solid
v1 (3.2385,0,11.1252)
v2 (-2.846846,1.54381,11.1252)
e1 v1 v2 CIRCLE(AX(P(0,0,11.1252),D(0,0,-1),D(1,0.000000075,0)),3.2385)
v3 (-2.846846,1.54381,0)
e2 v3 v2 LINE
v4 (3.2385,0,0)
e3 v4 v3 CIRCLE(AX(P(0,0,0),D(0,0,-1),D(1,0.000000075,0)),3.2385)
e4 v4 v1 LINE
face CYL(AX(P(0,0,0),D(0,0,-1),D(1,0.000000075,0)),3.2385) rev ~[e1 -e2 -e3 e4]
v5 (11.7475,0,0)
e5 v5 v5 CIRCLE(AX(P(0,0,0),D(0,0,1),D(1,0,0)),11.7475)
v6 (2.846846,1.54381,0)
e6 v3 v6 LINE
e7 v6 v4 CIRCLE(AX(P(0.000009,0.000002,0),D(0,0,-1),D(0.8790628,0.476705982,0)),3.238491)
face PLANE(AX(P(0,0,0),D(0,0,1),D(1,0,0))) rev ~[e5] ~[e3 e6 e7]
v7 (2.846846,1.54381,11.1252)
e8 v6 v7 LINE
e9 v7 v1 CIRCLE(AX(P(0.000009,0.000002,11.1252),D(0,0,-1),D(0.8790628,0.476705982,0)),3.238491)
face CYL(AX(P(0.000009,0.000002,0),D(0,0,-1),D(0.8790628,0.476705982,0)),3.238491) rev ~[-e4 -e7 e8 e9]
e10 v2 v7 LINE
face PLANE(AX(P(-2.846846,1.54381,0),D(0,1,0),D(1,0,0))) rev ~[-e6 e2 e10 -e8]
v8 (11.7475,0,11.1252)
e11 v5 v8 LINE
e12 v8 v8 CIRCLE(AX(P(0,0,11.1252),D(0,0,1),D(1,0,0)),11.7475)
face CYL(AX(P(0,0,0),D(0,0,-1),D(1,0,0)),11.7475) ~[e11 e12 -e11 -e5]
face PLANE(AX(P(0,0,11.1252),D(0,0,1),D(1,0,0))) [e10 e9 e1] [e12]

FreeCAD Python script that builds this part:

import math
import FreeCAD as App
import Part
import Sketcher

V = App.Vector
Q = App.Units.Quantity

doc = App.newDocument("Part")
params = doc.addObject("Spreadsheet::Sheet", "Params")
for row, (alias, value) in enumerate([
    ("sketch1_diameter", "0.925 in"),
    ("pad1_length", "0.438 in"),
], start=1):
    params.set(f"A{row}", alias)
    params.set(f"B{row}", "=" + value)
    params.setAlias(f"B{row}", alias)

body = doc.addObject("PartDesign::Body", "Body")

# Sketch on XY plane
sketch1 = doc.addObject("Sketcher::SketchObject", "Sketch")
body.addObject(sketch1)
sketch1.AttachmentSupport = (doc.XY_Plane, [""])
sketch1.MapMode = "FlatFace"
sketch1.addGeometry(Part.Circle(V(0, 0, 0), V(0, 0, 1), 11.7), False)
sketch1.addGeometry(Part.ArcOfCircle(Part.Circle(V(0, 0, 0), V(0, 0, 1), 3.2), math.radians(152), math.radians(360)), False)
sketch1.addGeometry(Part.LineSegment(V(-2.8, 1.5, 0), V(2.8, 1.5, 0)), False)
sketch1.addGeometry(Part.ArcOfCircle(Part.Circle(V(0, 0, 0), V(0, 0, 1), 3.2), math.radians(0), math.radians(28)), False)
sketch1.addConstraint(Sketcher.Constraint("Coincident", 1, 1, 2, 1))
sketch1.addConstraint(Sketcher.Constraint("Coincident", 2, 2, 3, 2))
sketch1.addConstraint(Sketcher.Constraint("Tangent", 3, 1, 1, 2))
sketch1.addConstraint(Sketcher.Constraint("Horizontal", 2))
sketch1.addConstraint(Sketcher.Constraint("Coincident", 0, 3, -1, 1))
sketch1.addConstraint(Sketcher.Constraint("Coincident", 1, 3, -1, 1))
sketch1.addConstraint(Sketcher.Constraint("PointOnObject", 3, 1, -1))
sketch1.addConstraint(Sketcher.Constraint("Diameter", 0, Q("0.925 in")))
sketch1.addConstraint(Sketcher.Constraint("Radius", 1, Q("0.1275 in")))
sketch1.addConstraint(Sketcher.Constraint("Radius", 3, 3.238491))
sketch1.addConstraint(Sketcher.Constraint("DistanceX", 2, 1, 2, 2, 5.693692))
sketch1.setExpression("Constraints[7]", "Params.sketch1_diameter")
pad1 = doc.addObject("PartDesign::Pad", "Pad")
body.addObject(pad1)
pad1.Profile = sketch1
pad1.setExpression("Length", "Params.pad1_length")

doc.recompute()
